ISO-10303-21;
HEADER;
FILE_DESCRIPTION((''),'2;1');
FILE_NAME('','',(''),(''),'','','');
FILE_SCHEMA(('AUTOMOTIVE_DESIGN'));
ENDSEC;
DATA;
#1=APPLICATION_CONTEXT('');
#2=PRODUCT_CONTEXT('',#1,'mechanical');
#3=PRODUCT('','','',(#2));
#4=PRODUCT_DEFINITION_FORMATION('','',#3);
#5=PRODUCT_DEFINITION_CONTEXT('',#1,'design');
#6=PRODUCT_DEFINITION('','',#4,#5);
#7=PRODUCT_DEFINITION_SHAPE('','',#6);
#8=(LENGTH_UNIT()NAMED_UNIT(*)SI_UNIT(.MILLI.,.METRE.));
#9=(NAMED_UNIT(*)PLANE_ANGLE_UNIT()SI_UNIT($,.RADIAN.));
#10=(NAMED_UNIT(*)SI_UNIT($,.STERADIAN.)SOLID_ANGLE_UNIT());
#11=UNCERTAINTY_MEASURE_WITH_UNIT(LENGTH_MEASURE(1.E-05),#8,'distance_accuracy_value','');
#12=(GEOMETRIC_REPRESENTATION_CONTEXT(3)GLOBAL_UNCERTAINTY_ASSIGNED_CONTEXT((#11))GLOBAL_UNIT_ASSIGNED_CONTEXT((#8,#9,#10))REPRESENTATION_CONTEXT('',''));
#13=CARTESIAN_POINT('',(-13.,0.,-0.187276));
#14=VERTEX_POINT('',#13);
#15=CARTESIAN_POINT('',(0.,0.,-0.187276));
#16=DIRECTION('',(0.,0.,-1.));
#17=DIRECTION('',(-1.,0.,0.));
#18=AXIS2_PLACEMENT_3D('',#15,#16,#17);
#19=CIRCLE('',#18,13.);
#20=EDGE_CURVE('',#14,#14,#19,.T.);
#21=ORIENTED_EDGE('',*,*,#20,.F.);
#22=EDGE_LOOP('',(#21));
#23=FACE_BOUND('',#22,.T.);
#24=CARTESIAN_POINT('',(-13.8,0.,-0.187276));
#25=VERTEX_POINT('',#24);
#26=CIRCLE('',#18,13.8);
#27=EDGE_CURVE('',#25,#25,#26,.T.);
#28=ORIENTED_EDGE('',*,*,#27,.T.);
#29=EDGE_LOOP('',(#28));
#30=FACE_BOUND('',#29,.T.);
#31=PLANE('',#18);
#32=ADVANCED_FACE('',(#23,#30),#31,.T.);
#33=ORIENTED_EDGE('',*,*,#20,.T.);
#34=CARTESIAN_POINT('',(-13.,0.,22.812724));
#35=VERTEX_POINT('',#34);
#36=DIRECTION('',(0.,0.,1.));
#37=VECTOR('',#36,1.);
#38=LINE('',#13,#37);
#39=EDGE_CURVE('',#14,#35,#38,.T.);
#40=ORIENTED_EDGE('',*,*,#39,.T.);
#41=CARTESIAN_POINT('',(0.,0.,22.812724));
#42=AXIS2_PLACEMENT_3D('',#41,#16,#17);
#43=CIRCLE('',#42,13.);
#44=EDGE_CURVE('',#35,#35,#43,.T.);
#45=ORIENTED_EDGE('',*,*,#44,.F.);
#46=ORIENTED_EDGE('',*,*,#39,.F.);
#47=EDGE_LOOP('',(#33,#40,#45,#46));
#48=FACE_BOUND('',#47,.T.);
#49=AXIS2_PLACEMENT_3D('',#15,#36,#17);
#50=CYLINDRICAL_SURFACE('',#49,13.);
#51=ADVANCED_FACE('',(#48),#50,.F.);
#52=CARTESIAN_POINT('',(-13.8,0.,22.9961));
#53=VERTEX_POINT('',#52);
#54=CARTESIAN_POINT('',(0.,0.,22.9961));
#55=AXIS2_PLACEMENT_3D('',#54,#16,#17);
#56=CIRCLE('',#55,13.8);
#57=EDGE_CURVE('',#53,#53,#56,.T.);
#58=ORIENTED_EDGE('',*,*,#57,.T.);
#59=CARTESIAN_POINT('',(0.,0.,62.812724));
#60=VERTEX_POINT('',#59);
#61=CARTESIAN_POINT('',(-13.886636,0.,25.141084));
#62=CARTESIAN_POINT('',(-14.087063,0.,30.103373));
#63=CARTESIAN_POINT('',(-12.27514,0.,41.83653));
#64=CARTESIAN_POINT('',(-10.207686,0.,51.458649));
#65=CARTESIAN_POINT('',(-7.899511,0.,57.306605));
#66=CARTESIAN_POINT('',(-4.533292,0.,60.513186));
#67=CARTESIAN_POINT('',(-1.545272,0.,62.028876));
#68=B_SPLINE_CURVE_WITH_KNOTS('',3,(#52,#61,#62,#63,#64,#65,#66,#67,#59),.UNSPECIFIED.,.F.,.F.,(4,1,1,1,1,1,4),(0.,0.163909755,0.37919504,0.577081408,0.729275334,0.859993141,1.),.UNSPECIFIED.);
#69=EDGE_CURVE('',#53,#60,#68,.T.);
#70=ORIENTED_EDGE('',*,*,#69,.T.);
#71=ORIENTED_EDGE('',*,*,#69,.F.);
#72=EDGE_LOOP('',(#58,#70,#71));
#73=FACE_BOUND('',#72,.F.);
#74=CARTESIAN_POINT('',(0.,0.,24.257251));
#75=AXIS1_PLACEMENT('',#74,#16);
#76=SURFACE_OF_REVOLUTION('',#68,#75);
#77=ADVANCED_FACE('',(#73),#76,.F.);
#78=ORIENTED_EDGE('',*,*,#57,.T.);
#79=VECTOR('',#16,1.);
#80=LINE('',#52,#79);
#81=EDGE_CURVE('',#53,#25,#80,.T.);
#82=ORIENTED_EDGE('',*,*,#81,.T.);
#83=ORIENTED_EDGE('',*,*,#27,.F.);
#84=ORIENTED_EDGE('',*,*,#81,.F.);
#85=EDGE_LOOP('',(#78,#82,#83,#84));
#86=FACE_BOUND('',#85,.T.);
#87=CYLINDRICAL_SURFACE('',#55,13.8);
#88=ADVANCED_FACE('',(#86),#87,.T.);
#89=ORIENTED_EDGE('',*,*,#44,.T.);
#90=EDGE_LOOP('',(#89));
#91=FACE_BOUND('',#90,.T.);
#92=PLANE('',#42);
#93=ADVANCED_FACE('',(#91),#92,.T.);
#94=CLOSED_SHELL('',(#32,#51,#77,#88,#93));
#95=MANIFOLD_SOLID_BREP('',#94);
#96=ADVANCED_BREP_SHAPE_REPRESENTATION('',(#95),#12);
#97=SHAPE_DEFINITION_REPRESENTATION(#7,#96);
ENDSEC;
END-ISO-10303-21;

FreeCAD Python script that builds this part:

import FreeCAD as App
import Part
import Sketcher
Q = App.Units.Quantity

doc = App.newDocument("Part")
body = doc.addObject("PartDesign::Body", "Body")

# Sketch on XZ plane
sketch1 = body.newObject("Sketcher::SketchObject", "Sketch")
sketch1.AttachmentSupport = (doc.getObject("XZ_Plane"), [""])
sketch1.MapMode = "FlatFace"
sketch1.addGeometry(Part.LineSegment(App.Vector(-13.8, -0.187276, 0), App.Vector(-13, -0.187276, 0)), False)
sketch1.addGeometry(Part.LineSegment(App.Vector(-13, -0.187276, 0), App.Vector(-13, 22.812724, 0)), False)
sketch1.addGeometry(Part.LineSegment(App.Vector(-13, 22.812724, 0), App.Vector(0, 22.812724, 0)), False)
sketch1.addGeometry(Part.LineSegment(App.Vector(0, 22.812724, 0), App.Vector(0, 62.812724, 0)), False)
sketch1.addGeometry(Part.BSplineCurve([App.Vector(-13.8, 22.9961, 0), App.Vector(-13.886636, 25.141084, 0), App.Vector(-14.087063, 30.103373, 0), App.Vector(-12.27514, 41.83653, 0), App.Vector(-10.207686, 51.458649, 0), App.Vector(-7.899511, 57.306605, 0), App.Vector(-4.533292, 60.513186, 0), App.Vector(-1.545272, 62.028876, 0), App.Vector(0, 62.812724, 0)], [4, 1, 1, 1, 1, 1, 4], [0, 0.163909755, 0.37919504, 0.577081408, 0.729275334, 0.859993141, 1], False, 3, [1, 1, 1, 1, 1, 1, 1, 1, 1], False), False)
sketch1.addGeometry(Part.LineSegment(App.Vector(-13.8, 22.9961, 0), App.Vector(-13.8, -0.187276, 0)), False)
sketch1.addConstraint(Sketcher.Constraint("Block", 4))
sketch1.addConstraint(Sketcher.Constraint("Coincident", 0, 2, 1, 1))
sketch1.addConstraint(Sketcher.Constraint("Coincident", 1, 2, 2, 1))
sketch1.addConstraint(Sketcher.Constraint("Coincident", 2, 2, 3, 1))
sketch1.addConstraint(Sketcher.Constraint("Coincident", 3, 2, 4, 2))
sketch1.addConstraint(Sketcher.Constraint("Coincident", 4, 1, 5, 1))
sketch1.addConstraint(Sketcher.Constraint("Coincident", 5, 2, 0, 1))
sketch1.addConstraint(Sketcher.Constraint("Horizontal", 0))
sketch1.addConstraint(Sketcher.Constraint("Vertical", 1))
sketch1.addConstraint(Sketcher.Constraint("Horizontal", 2))
sketch1.addConstraint(Sketcher.Constraint("Vertical", 3))
sketch1.addConstraint(Sketcher.Constraint("Vertical", 5))
sketch1.addConstraint(Sketcher.Constraint("DistanceX", 2, 1, 2, 2, Q("13 mm")))
sketch1.addConstraint(Sketcher.Constraint("DistanceY", 1, 1, 1, 2, Q("23 mm")))
sketch1.addConstraint(Sketcher.Constraint("DistanceY", 3, 1, 3, 2, Q("40 mm")))
revolution = body.newObject("PartDesign::Revolution", "Revolution")
revolution.Profile = sketch1
revolution.ReferenceAxis = (sketch1, ["V_Axis"])
revolution.Angle = 360

doc.recompute()
